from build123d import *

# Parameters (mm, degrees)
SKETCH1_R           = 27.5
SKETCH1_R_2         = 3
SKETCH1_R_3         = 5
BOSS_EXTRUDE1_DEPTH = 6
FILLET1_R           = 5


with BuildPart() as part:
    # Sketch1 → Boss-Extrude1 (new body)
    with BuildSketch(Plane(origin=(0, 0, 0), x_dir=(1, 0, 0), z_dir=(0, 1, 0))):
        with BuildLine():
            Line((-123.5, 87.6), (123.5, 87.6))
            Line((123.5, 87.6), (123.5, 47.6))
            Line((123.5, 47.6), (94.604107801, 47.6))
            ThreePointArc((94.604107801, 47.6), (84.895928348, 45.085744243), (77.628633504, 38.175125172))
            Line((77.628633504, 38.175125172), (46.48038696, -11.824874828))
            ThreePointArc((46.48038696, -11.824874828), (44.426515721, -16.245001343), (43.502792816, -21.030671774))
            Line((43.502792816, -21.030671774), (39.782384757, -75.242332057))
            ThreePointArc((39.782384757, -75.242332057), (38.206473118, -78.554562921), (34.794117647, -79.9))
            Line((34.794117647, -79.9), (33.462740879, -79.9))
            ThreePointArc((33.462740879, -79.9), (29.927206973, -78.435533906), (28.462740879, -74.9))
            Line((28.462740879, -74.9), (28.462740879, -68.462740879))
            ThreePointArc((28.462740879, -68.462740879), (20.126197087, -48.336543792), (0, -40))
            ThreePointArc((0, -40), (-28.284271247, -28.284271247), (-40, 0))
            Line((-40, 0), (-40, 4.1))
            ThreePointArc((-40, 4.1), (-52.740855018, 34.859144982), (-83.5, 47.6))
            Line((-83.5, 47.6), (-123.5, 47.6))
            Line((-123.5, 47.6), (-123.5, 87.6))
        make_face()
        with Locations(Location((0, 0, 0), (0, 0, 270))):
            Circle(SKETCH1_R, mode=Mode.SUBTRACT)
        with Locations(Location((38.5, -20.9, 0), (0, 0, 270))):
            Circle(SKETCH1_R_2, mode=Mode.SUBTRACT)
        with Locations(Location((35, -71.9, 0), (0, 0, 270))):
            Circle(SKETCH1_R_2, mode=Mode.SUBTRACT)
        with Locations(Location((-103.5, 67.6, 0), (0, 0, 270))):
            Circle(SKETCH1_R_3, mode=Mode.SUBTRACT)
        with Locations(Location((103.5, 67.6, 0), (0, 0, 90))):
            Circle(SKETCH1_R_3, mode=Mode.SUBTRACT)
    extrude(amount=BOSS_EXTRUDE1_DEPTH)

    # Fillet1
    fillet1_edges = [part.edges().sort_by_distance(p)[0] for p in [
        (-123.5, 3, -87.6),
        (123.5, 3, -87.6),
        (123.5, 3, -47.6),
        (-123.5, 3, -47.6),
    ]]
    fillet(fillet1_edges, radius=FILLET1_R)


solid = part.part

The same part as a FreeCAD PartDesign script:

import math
import FreeCAD as App
import Part
import Sketcher
from FreeCAD import Vector
Q = App.Units.Quantity


def edges_at(feature, points):
    """Names of the edges that pass closest to the given points."""
    edges = feature.Shape.Edges
    near = lambda p: min(range(len(edges)), key=lambda i: edges[i].distToShape(Part.Vertex(*p))[0])
    return sorted({f"Edge{near(p) + 1}" for p in points})

doc = App.newDocument("Part")
body = doc.addObject("PartDesign::Body", "Body")

# Sketch on XZ plane
sketch1 = body.newObject("Sketcher::SketchObject", "Sketch")
sketch1.AttachmentSupport = (doc.getObject("XZ_Plane"), [""])
sketch1.MapMode = "FlatFace"
sketch1.addGeometry(Part.LineSegment(Vector(123.5, -87.6, 0), Vector(-123.5, -87.6, 0)), False)
sketch1.addGeometry(Part.LineSegment(Vector(-123.5, -87.6, 0), Vector(-123.5, -47.6, 0)), False)
sketch1.addGeometry(Part.LineSegment(Vector(-123.5, -47.6, 0), Vector(-83.5, -47.6, 0)), False)
sketch1.addGeometry(Part.ArcOfCircle(Part.Circle(Vector(-83.5, -4.1, 0), Vector(0, 0, 1), 43.5), math.radians(-90), math.radians(0)), False)
sketch1.addGeometry(Part.LineSegment(Vector(-40, -4.1, 0), Vector(-40, 0, 0)), False)
sketch1.addGeometry(Part.ArcOfCircle(Part.Circle(Vector(0, 0, 0), Vector(0, 0, 1), 40), math.radians(90), math.radians(180)), False)
sketch1.addGeometry(Part.ArcOfCircle(Part.Circle(Vector(0, 68.5, 0), Vector(0, 0, 1), 28.5), math.radians(-90), math.radians(0)), False)
sketch1.addGeometry(Part.LineSegment(Vector(28.5, 68.5, 0), Vector(28.5, 74.9, 0)), False)
sketch1.addGeometry(Part.ArcOfCircle(Part.Circle(Vector(33.5, 74.9, 0), Vector(0, 0, 1), 5), math.radians(90), math.radians(180)), False)
sketch1.addGeometry(Part.LineSegment(Vector(33.5, 79.9, 0), Vector(34.8, 79.9, 0)), False)
sketch1.addGeometry(Part.ArcOfCircle(Part.Circle(Vector(34.8, 74.9, 0), Vector(0, 0, 1), 5), math.radians(4), math.radians(90)), False)
sketch1.addGeometry(Part.LineSegment(Vector(39.8, 75.2, 0), Vector(43.5, 21, 0)), False)
sketch1.addGeometry(Part.ArcOfCircle(Part.Circle(Vector(63.5, 22.4, 0), Vector(0, 0, 1), 20), math.radians(-176), math.radians(-148)), False)
sketch1.addGeometry(Part.LineSegment(Vector(46.5, 11.8, 0), Vector(77.6, -38.2, 0)), False)
sketch1.addGeometry(Part.ArcOfCircle(Part.Circle(Vector(94.6, -27.6, 0), Vector(0, 0, 1), 20), math.radians(-148), math.radians(-90)), False)
sketch1.addGeometry(Part.LineSegment(Vector(94.6, -47.6, 0), Vector(123.5, -47.6, 0)), False)
sketch1.addGeometry(Part.LineSegment(Vector(123.5, -47.6, 0), Vector(123.5, -87.6, 0)), False)
sketch1.addGeometry(Part.Circle(Vector(35, 71.9, 0), Vector(0, 0, 1), 3), False)
sketch1.addGeometry(Part.Circle(Vector(38.5, 20.9, 0), Vector(0, 0, 1), 3), False)
sketch1.addGeometry(Part.Circle(Vector(103.5, -67.6, 0), Vector(0, 0, 1), 5), False)
sketch1.addGeometry(Part.Circle(Vector(0, 0, 0), Vector(0, 0, 1), 27.5), False)
sketch1.addGeometry(Part.Circle(Vector(-103.5, -67.6, 0), Vector(0, 0, 1), 5), False)
sketch1.addConstraint(Sketcher.Constraint("Coincident", 0, 2, 1, 1))
sketch1.addConstraint(Sketcher.Constraint("Coincident", 1, 2, 2, 1))
sketch1.addConstraint(Sketcher.Constraint("Tangent", 2, 2, 3, 1))
sketch1.addConstraint(Sketcher.Constraint("Tangent", 3, 2, 4, 1))
sketch1.addConstraint(Sketcher.Constraint("Tangent", 4, 2, 5, 2))
sketch1.addConstraint(Sketcher.Constraint("Tangent", 5, 1, 6, 1))
sketch1.addConstraint(Sketcher.Constraint("Tangent", 6, 2, 7, 1))
sketch1.addConstraint(Sketcher.Constraint("Tangent", 7, 2, 8, 2))
sketch1.addConstraint(Sketcher.Constraint("Tangent", 8, 1, 9, 1))
sketch1.addConstraint(Sketcher.Constraint("Tangent", 9, 2, 10, 2))
sketch1.addConstraint(Sketcher.Constraint("Tangent", 10, 1, 11, 1))
sketch1.addConstraint(Sketcher.Constraint("Tangent", 11, 2, 12, 1))
sketch1.addConstraint(Sketcher.Constraint("Tangent", 12, 2, 13, 1))
sketch1.addConstraint(Sketcher.Constraint("Tangent", 13, 2, 14, 1))
sketch1.addConstraint(Sketcher.Constraint("Tangent", 14, 2, 15, 1))
sketch1.addConstraint(Sketcher.Constraint("Coincident", 15, 2, 16, 1))
sketch1.addConstraint(Sketcher.Constraint("Coincident", 16, 2, 0, 1))
sketch1.addConstraint(Sketcher.Constraint("Horizontal", 0))
sketch1.addConstraint(Sketcher.Constraint("Vertical", 1))
sketch1.addConstraint(Sketcher.Constraint("Horizontal", 2))
sketch1.addConstraint(Sketcher.Constraint("Vertical", 4))
sketch1.addConstraint(Sketcher.Constraint("Vertical", 7))
sketch1.addConstraint(Sketcher.Constraint("Horizontal", 9))
sketch1.addConstraint(Sketcher.Constraint("Horizontal", 15))
sketch1.addConstraint(Sketcher.Constraint("Vertical", 16))
sketch1.addConstraint(Sketcher.Constraint("Coincident", 5, 3, -1, 1))
sketch1.addConstraint(Sketcher.Constraint("Coincident", 20, 3, -1, 1))
sketch1.addConstraint(Sketcher.Constraint("Equal", 8, 10))
sketch1.addConstraint(Sketcher.Constraint("Equal", 12, 14))
sketch1.addConstraint(Sketcher.Constraint("Equal", 17, 18))
sketch1.addConstraint(Sketcher.Constraint("Equal", 10, 19))
sketch1.addConstraint(Sketcher.Constraint("Equal", 19, 21))
sketch1.addConstraint(Sketcher.Constraint("Symmetric", 19, 3, 21, 3, -2))
sketch1.addConstraint(Sketcher.Constraint("Symmetric", 1, 2, 15, 2, -2))
sketch1.addConstraint(Sketcher.Constraint("PointOnObject", 6, 3, -2))
sketch1.addConstraint(Sketcher.Constraint("Equal", 2, 1))
sketch1.addConstraint(Sketcher.Constraint("Diameter", 17, Q("6 mm")))
sketch1.addConstraint(Sketcher.Constraint("Diameter", 19, Q("10 mm")))
sketch1.addConstraint(Sketcher.Constraint("Diameter", 20, Q("55 mm")))
sketch1.addConstraint(Sketcher.Constraint("Radius", 5, Q("40 mm")))
sketch1.addConstraint(Sketcher.Constraint("Radius", 12, Q("20 mm")))
sketch1.addConstraint(Sketcher.Constraint("Radius", 3, Q("43.5 mm")))
sketch1.addConstraint(Sketcher.Constraint("DistanceX", 0, 2, 0, 1, Q("247 mm")))
sketch1.addConstraint(Sketcher.Constraint("DistanceY", 4, 1, 4, 2, Q("4.1 mm")))
sketch1.addConstraint(Sketcher.Constraint("DistanceX", -1, 1, 17, 3, Q("35 mm")))
sketch1.addConstraint(Sketcher.Constraint("DistanceY", 3, 3, 8, 3, Q("79 mm")))
sketch1.addConstraint(Sketcher.Constraint("DistanceY", 14, 3, 12, 3, Q("50 mm")))
sketch1.addConstraint(Sketcher.Constraint("DistanceY", 17, 3, 10, 3, Q("3 mm")))
sketch1.addConstraint(Sketcher.Constraint("DistanceY", 18, 3, 17, 3, Q("51 mm")))
sketch1.addConstraint(Sketcher.Constraint("DistanceY", 19, 3, 14, 3, Q("40 mm")))
sketch1.addConstraint(Sketcher.Constraint("DistanceX", 18, 3, 19, 3, Q("65 mm")))
sketch1.addConstraint(Sketcher.Constraint("DistanceX", 21, 3, 3, 3, Q("20 mm")))
sketch1.addConstraint(Sketcher.Constraint("Radius", 6, Q("28.462741 mm")))
sketch1.addConstraint(Sketcher.Constraint("Distance", 11, Q("54.339171 mm")))
sketch1.addConstraint(Sketcher.Constraint("DistanceX", 9, 1, 9, 2, Q("1.331377 mm")))
sketch1.addConstraint(Sketcher.Constraint("DistanceX", 15, 1, 15, 2, Q("28.895892 mm")))
pad1 = body.newObject("PartDesign::Pad", "Pad")
pad1.Profile = sketch1
pad1.Length = 6
pad1.Reversed = True
doc.recompute()

fillet = body.newObject("PartDesign::Fillet", "Fillet")
fillet.Base = (pad1, edges_at(pad1, [
    (-123.5, 3, -87.6),
    (123.5, 3, -87.6),
    (123.5, 3, -47.6),
    (-123.5, 3, -47.6),
]))
fillet.Radius = 5

doc.recompute()
